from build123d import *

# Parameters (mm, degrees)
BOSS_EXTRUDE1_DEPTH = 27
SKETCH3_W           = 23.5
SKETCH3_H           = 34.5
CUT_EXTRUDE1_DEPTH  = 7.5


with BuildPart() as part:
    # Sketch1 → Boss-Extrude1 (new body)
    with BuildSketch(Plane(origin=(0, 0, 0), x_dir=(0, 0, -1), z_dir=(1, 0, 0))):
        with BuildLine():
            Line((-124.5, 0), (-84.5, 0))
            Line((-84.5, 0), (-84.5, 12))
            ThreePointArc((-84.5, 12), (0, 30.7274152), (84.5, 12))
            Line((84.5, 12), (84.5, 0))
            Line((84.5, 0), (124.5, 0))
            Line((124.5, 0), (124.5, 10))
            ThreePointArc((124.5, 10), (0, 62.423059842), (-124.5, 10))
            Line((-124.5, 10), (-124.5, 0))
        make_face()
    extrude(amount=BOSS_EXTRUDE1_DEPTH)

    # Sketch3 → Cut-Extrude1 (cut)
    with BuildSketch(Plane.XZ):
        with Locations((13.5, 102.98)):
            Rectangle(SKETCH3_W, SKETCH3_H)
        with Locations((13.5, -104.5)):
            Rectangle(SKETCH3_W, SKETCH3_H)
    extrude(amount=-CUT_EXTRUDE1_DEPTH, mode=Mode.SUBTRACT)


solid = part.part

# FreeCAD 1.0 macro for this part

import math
import FreeCAD as App
import Part
import Sketcher

V = App.Vector

doc = App.newDocument("Part")
params = doc.addObject("Spreadsheet::Sheet", "Params")
for row, (alias, value) in enumerate([
    ("sketch1_radius", "200 mm"),
    ("sketch1_width", "12 mm"),
    ("sketch1_width2", "10 mm"),
    ("sketch1_height", "40 mm"),
    ("pad1_length", "27 mm"),
    ("sketch2_width", "23.5 mm"),
    ("sketch2_height", "34.5 mm"),
    ("pocket1_length", "7.5 mm"),
], start=1):
    params.set(f"A{row}", alias)
    params.set(f"B{row}", "=" + value)
    params.setAlias(f"B{row}", alias)

body = doc.addObject("PartDesign::Body", "Body")

# Sketch on YZ plane
sketch1 = body.newObject("Sketcher::SketchObject", "Sketch")
sketch1.AttachmentSupport = (doc.getObject("YZ_Plane"), [""])
sketch1.MapMode = "FlatFace"
sketch1.addGeometry(Part.LineSegment(V(0, 124, 0), V(0, 84, 0)), False)
sketch1.addGeometry(Part.LineSegment(V(0, 84, 0), V(12, 84, 0)), False)
sketch1.addGeometry(Part.ArcOfCircle(Part.Circle(V(-169, 0, 0), V(0, 0, 1), 200), math.radians(-25), math.radians(25)), False)
sketch1.addGeometry(Part.LineSegment(V(12, -84, 0), V(0, -84, 0)), False)
sketch1.addGeometry(Part.LineSegment(V(0, -84, 0), V(0, -124, 0)), False)
sketch1.addGeometry(Part.LineSegment(V(0, -124, 0), V(10, -124, 0)), False)
sketch1.addGeometry(Part.ArcOfCircle(Part.Circle(V(-112, 0, 0), V(0, 0, 1), 174), math.radians(-46), math.radians(46)), False)
sketch1.addGeometry(Part.LineSegment(V(10, 124, 0), V(0, 124, 0)), False)
sketch1.addConstraint(Sketcher.Constraint("Coincident", 0, 2, 1, 1))
sketch1.addConstraint(Sketcher.Constraint("Coincident", 1, 2, 2, 2))
sketch1.addConstraint(Sketcher.Constraint("Coincident", 2, 1, 3, 1))
sketch1.addConstraint(Sketcher.Constraint("Coincident", 3, 2, 4, 1))
sketch1.addConstraint(Sketcher.Constraint("Coincident", 4, 2, 5, 1))
sketch1.addConstraint(Sketcher.Constraint("Coincident", 5, 2, 6, 1))
sketch1.addConstraint(Sketcher.Constraint("Coincident", 6, 2, 7, 1))
sketch1.addConstraint(Sketcher.Constraint("Coincident", 7, 2, 0, 1))
sketch1.addConstraint(Sketcher.Constraint("Vertical", 0))
sketch1.addConstraint(Sketcher.Constraint("Horizontal", 1))
sketch1.addConstraint(Sketcher.Constraint("Horizontal", 3))
sketch1.addConstraint(Sketcher.Constraint("Vertical", 4))
sketch1.addConstraint(Sketcher.Constraint("Horizontal", 5))
sketch1.addConstraint(Sketcher.Constraint("Horizontal", 7))
sketch1.addConstraint(Sketcher.Constraint("Symmetric", 0, 2, 3, 2, -1, 1))
sketch1.addConstraint(Sketcher.Constraint("Symmetric", 5, 2, 6, 2, -1))
sketch1.addConstraint(Sketcher.Constraint("PointOnObject", 2, 3, -1))
sketch1.addConstraint(Sketcher.Constraint("PointOnObject", 0, 2, -2))
sketch1.addConstraint(Sketcher.Constraint("Radius", 2, 200.0))
sketch1.addConstraint(Sketcher.Constraint("DistanceX", 1, 1, 1, 2, 12.0))
sketch1.addConstraint(Sketcher.Constraint("DistanceX", 5, 1, 5, 2, 10.0))
sketch1.addConstraint(Sketcher.Constraint("DistanceY", 0, 2, 0, 1, 40.0))
sketch1.addConstraint(Sketcher.Constraint("DistanceY", 2, 1, 1, 2, 169.0))
sketch1.addConstraint(Sketcher.Constraint("Radius", 6, 174.049619))
sketch1.setExpression("Constraints[18]", "Params.sketch1_radius")
sketch1.setExpression("Constraints[19]", "Params.sketch1_width")
sketch1.setExpression("Constraints[20]", "Params.sketch1_width2")
sketch1.setExpression("Constraints[21]", "Params.sketch1_height")
pad1 = body.newObject("PartDesign::Pad", "Pad")
pad1.Profile = sketch1
pad1.setExpression("Length", "Params.pad1_length")

# Sketch on XZ plane
sketch2 = body.newObject("Sketcher::SketchObject", "Sketch001")
sketch2.AttachmentSupport = (doc.getObject("XZ_Plane"), [""])
sketch2.MapMode = "FlatFace"
sketch2.addGeometry(Part.LineSegment(V(2, 120, 0), V(2, 86, 0)), False)
sketch2.addGeometry(Part.LineSegment(V(2, 86, 0), V(25, 86, 0)), False)
sketch2.addGeometry(Part.LineSegment(V(25, 86, 0), V(25, 120, 0)), False)
sketch2.addGeometry(Part.LineSegment(V(25, 120, 0), V(2, 120, 0)), False)
sketch2.addGeometry(Part.LineSegment(V(2, -87, 0), V(2, -122, 0)), False)
sketch2.addGeometry(Part.LineSegment(V(2, -122, 0), V(25, -122, 0)), False)
sketch2.addGeometry(Part.LineSegment(V(25, -122, 0), V(25, -87, 0)), False)
sketch2.addGeometry(Part.LineSegment(V(25, -87, 0), V(2, -87, 0)), False)
sketch2.addConstraint(Sketcher.Constraint("Coincident", 0, 2, 1, 1))
sketch2.addConstraint(Sketcher.Constraint("Coincident", 1, 2, 2, 1))
sketch2.addConstraint(Sketcher.Constraint("Coincident", 2, 2, 3, 1))
sketch2.addConstraint(Sketcher.Constraint("Coincident", 3, 2, 0, 1))
sketch2.addConstraint(Sketcher.Constraint("Coincident", 4, 2, 5, 1))
sketch2.addConstraint(Sketcher.Constraint("Coincident", 5, 2, 6, 1))
sketch2.addConstraint(Sketcher.Constraint("Coincident", 6, 2, 7, 1))
sketch2.addConstraint(Sketcher.Constraint("Coincident", 7, 2, 4, 1))
sketch2.addConstraint(Sketcher.Constraint("Vertical", 0))
sketch2.addConstraint(Sketcher.Constraint("Horizontal", 1))
sketch2.addConstraint(Sketcher.Constraint("Vertical", 2))
sketch2.addConstraint(Sketcher.Constraint("Horizontal", 3))
sketch2.addConstraint(Sketcher.Constraint("Vertical", 4))
sketch2.addConstraint(Sketcher.Constraint("Horizontal", 5))
sketch2.addConstraint(Sketcher.Constraint("Vertical", 6))
sketch2.addConstraint(Sketcher.Constraint("Horizontal", 7))
sketch2.addConstraint(Sketcher.Constraint("Vertical", 3, 2, 4, 2))
sketch2.addConstraint(Sketcher.Constraint("Vertical", 2, 2, 5, 2))
sketch2.addConstraint(Sketcher.Constraint("Equal", 2, 4))
sketch2.addConstraint(Sketcher.Constraint("DistanceX", 1, 1, 1, 2, 23.5))
sketch2.addConstraint(Sketcher.Constraint("DistanceY", 0, 2, 0, 1, 34.5))
sketch2.addConstraint(Sketcher.Constraint("DistanceX", -1, 1, 0, 2, 1.75))
sketch2.addConstraint(Sketcher.Constraint("DistanceY", -1, 1, 0, 2, 85.73))
sketch2.addConstraint(Sketcher.Constraint("DistanceY", 4, 2, -1, 1, 121.75))
sketch2.setExpression("Constraints[19]", "Params.sketch2_width")
sketch2.setExpression("Constraints[20]", "Params.sketch2_height")
pocket1 = body.newObject("PartDesign::Pocket", "Pocket")
pocket1.Profile = sketch2
pocket1.setExpression("Length", "Params.pocket1_length")

doc.recompute()
